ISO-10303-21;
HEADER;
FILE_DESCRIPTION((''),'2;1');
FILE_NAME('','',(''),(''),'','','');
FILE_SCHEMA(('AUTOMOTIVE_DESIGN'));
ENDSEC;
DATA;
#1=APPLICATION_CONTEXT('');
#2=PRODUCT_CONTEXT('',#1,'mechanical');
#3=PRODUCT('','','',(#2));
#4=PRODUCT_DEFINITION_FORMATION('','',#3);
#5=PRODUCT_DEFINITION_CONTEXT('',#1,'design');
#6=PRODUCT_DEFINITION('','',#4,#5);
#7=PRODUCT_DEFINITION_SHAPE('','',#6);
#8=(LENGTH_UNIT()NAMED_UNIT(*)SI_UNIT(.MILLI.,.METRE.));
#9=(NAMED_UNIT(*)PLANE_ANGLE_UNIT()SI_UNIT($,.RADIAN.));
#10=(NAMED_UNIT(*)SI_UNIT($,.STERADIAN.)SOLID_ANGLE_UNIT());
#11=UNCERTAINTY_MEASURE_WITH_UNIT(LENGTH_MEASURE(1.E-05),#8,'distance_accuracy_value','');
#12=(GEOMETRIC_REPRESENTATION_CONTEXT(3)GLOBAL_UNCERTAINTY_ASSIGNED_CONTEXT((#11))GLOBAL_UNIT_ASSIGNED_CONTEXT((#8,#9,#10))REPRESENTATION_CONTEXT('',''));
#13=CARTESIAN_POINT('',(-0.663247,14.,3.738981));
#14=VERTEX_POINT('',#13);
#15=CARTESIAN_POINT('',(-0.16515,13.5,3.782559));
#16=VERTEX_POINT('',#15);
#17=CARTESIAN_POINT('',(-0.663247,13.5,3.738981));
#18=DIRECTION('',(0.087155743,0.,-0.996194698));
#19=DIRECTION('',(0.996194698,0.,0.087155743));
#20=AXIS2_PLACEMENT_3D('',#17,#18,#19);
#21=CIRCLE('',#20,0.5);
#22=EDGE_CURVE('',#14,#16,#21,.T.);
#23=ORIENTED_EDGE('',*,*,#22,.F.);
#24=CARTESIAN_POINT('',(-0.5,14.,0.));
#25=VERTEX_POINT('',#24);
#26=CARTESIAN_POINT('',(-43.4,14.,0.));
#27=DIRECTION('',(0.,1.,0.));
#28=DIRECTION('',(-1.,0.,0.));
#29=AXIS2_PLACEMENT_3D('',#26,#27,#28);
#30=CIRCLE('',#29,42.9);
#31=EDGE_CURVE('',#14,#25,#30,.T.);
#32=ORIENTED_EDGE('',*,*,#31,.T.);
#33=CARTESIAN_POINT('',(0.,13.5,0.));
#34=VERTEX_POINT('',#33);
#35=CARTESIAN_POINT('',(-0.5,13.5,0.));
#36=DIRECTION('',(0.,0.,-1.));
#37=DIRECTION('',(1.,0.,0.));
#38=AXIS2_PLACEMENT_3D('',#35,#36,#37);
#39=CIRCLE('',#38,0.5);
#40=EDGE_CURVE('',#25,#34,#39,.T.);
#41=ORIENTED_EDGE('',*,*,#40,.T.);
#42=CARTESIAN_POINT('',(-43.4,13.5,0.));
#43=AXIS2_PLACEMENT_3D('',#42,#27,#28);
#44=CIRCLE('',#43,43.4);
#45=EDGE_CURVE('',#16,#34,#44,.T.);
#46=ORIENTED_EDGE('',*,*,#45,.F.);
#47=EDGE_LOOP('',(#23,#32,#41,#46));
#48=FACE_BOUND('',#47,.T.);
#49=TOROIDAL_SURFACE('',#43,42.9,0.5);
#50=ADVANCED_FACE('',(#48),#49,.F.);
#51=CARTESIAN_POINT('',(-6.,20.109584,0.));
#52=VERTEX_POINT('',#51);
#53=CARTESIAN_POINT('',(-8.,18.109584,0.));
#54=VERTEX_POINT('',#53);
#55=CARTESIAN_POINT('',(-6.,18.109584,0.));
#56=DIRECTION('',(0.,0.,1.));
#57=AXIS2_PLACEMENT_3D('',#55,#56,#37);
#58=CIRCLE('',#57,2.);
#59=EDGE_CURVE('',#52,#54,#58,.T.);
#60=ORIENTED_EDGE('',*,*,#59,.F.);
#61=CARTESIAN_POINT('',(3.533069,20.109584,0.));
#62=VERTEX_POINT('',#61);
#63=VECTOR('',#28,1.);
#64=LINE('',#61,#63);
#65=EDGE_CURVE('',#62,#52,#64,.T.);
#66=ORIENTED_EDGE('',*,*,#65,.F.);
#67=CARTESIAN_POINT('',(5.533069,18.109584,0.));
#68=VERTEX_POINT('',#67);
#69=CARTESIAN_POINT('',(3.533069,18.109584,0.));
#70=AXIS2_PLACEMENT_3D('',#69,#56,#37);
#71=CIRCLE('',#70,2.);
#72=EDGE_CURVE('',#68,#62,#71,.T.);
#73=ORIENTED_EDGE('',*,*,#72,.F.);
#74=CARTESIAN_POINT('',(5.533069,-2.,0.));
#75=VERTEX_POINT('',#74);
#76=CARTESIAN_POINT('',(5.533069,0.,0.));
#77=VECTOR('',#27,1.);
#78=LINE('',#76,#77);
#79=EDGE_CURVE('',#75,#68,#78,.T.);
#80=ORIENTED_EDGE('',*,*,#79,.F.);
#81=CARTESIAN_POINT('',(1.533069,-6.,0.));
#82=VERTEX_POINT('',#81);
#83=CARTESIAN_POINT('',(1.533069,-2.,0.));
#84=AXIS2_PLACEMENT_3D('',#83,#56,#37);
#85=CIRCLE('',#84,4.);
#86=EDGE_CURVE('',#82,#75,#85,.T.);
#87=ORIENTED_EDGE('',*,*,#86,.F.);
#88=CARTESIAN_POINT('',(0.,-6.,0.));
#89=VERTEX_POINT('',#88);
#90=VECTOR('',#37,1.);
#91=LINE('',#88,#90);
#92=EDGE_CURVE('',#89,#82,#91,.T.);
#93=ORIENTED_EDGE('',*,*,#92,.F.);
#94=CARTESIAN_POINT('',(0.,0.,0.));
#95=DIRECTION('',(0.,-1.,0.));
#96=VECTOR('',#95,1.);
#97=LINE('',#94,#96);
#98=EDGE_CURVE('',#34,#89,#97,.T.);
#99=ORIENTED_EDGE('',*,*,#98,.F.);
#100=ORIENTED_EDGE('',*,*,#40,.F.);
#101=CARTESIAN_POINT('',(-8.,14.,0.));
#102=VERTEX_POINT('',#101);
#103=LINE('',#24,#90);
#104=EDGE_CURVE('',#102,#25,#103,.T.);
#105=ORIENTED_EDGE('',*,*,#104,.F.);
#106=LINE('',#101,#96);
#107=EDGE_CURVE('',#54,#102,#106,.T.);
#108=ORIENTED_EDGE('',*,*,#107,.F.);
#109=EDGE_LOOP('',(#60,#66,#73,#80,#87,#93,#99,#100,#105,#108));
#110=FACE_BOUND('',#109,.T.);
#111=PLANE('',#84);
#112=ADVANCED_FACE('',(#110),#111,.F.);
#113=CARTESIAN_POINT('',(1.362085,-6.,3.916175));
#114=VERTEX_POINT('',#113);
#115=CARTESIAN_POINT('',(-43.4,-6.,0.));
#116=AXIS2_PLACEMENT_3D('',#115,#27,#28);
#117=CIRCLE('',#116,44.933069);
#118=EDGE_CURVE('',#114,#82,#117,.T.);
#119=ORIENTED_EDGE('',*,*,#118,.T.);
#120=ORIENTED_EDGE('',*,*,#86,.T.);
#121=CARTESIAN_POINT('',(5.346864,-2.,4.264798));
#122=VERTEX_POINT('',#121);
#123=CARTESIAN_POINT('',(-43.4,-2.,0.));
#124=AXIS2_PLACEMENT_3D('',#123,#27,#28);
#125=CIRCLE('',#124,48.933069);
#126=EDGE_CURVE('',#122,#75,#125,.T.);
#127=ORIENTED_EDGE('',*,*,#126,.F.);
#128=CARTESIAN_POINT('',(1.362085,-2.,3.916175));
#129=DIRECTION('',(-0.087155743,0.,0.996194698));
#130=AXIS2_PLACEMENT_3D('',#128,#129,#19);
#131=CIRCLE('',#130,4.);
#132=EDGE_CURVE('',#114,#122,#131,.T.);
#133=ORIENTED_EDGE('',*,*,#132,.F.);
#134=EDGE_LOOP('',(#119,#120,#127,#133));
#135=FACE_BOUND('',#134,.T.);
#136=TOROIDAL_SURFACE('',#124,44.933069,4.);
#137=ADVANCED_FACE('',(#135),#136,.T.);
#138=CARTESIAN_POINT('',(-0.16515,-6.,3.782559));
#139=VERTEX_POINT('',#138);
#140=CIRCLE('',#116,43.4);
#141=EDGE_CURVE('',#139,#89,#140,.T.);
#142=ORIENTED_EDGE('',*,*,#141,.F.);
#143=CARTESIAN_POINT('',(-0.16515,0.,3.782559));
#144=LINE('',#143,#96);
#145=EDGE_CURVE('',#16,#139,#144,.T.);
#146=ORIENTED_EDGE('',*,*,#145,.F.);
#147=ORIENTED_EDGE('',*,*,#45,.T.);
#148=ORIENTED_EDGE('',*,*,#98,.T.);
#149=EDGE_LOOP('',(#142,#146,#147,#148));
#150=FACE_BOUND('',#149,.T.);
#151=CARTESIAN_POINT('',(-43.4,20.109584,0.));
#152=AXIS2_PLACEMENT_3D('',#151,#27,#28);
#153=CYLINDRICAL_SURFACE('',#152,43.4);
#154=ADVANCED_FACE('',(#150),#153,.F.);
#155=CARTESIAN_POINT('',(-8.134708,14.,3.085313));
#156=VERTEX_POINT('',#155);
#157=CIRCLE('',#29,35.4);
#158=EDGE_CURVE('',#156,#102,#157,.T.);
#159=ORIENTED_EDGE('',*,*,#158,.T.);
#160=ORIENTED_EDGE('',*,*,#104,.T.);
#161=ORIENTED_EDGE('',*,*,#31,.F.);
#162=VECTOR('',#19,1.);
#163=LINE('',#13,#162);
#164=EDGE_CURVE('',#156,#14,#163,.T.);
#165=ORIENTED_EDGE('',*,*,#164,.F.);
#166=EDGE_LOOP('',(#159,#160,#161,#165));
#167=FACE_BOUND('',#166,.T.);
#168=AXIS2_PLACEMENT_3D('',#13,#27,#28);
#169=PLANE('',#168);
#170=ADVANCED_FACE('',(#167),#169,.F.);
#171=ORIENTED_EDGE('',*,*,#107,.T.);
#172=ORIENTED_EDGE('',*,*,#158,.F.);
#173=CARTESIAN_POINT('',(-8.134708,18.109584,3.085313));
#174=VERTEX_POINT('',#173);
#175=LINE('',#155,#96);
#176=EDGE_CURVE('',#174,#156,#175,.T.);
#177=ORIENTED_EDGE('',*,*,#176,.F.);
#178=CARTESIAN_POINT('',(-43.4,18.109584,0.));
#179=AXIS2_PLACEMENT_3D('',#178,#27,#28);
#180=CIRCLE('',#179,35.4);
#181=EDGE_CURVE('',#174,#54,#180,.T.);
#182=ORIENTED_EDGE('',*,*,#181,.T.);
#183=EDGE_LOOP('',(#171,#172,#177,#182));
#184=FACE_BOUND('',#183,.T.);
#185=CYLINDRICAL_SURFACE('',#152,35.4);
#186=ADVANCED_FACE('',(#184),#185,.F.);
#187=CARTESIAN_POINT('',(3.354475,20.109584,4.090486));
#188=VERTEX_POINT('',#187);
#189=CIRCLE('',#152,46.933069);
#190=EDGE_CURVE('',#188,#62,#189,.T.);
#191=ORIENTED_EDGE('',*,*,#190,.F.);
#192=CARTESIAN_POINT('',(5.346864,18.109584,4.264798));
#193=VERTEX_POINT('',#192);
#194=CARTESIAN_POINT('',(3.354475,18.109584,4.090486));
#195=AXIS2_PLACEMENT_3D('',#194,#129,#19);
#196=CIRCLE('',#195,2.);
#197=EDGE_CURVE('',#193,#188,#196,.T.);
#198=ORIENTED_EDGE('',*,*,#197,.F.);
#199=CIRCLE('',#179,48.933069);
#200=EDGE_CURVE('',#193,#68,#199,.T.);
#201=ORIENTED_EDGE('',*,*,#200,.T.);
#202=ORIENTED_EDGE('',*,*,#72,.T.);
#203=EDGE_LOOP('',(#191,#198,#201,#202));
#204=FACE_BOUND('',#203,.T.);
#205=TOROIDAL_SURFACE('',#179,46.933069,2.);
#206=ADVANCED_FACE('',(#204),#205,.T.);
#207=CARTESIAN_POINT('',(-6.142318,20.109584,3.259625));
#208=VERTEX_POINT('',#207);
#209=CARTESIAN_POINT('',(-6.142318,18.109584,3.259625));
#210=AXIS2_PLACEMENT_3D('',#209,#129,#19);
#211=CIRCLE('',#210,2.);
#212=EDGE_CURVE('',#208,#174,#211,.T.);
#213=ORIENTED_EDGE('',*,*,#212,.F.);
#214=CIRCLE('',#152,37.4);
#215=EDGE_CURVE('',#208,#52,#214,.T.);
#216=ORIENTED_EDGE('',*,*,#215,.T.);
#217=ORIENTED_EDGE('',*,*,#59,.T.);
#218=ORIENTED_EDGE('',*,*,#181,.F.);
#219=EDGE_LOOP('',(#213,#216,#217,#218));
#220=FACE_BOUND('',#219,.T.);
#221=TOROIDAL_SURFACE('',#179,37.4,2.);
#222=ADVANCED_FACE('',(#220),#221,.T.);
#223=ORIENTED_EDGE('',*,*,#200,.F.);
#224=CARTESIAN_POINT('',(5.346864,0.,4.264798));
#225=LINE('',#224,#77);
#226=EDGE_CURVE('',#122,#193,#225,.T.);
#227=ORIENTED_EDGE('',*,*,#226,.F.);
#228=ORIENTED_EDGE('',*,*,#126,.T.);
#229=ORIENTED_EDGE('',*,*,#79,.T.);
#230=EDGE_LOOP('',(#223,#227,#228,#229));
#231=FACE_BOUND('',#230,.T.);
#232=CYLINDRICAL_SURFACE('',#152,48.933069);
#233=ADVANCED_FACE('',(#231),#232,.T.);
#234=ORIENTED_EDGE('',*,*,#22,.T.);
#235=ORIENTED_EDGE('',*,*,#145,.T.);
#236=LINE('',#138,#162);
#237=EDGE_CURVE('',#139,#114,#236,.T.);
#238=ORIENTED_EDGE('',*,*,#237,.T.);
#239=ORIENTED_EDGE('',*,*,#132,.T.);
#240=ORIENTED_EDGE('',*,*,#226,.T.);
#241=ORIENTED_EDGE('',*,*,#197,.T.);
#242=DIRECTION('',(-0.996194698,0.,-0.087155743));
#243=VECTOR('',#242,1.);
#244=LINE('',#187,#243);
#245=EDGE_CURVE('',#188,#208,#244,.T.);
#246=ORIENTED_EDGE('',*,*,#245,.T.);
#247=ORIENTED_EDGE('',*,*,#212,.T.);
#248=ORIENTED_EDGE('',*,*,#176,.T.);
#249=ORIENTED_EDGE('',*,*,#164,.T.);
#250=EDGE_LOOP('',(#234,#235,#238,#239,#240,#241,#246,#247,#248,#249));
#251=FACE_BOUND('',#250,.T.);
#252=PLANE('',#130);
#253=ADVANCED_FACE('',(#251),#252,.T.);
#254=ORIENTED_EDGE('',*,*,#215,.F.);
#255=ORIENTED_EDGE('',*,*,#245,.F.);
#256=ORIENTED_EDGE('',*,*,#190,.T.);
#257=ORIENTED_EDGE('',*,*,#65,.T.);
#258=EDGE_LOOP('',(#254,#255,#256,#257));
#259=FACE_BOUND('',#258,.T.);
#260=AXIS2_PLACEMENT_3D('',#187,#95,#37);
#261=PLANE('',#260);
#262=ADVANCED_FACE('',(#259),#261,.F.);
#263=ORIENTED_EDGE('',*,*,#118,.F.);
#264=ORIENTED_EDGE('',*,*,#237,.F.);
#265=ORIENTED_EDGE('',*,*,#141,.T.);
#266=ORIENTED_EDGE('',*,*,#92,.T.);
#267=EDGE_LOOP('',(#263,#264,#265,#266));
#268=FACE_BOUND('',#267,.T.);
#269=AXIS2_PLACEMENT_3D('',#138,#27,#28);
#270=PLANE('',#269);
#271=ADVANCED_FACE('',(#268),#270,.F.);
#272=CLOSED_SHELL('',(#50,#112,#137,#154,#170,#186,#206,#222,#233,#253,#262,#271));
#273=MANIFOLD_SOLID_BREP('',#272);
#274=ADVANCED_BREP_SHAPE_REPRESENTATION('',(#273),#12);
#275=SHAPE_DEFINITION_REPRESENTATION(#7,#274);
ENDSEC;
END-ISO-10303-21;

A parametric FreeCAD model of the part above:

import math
import FreeCAD as App
import Part
import Sketcher
from FreeCAD import Vector

doc = App.newDocument("Part")
params = doc.addObject("Spreadsheet::Sheet", "Params")
for row, (alias, value) in enumerate([
    ("sketch1_radius", "4 mm"),
    ("sketch1_radius2", "2 mm"),
    ("sketch1_radius3", "0.5 mm"),
    ("sketch1_width", "7.5 mm"),
    ("sketch1_height", "19.5 mm"),
    ("revolution_angle", "5 deg"),
], start=1):
    params.set(f"A{row}", alias)
    params.set(f"B{row}", "=" + value)
    params.setAlias(f"B{row}", alias)

body = doc.addObject("PartDesign::Body", "Body")

sketch1 = body.newObject("Sketcher::SketchObject", "Sketch")
sketch1.AttachmentSupport = (doc.getObject("XY_Plane"), [""])
sketch1.MapMode = "FlatFace"
sketch1.addGeometry([
    Part.ArcOfCircle(Part.Circle(Vector(-0.5, 13.5, 0), Vector(0, 0, 1), 0.5), math.radians(0), math.radians(90)),
    Part.LineSegment(Vector(0, 13.5, 0), Vector(0, -6, 0)),
    Part.LineSegment(Vector(0, -6, 0), Vector(1.53, -6, 0)),
    Part.ArcOfCircle(Part.Circle(Vector(1.53, -2, 0), Vector(0, 0, 1), 4), math.radians(-90), math.radians(0)),
    Part.LineSegment(Vector(5.53, -2, 0), Vector(5.53, 18.11, 0)),
    Part.ArcOfCircle(Part.Circle(Vector(3.53, 18.11, 0), Vector(0, 0, 1), 2), math.radians(0), math.radians(90)),
    Part.LineSegment(Vector(3.53, 20.11, 0), Vector(-6, 20.11, 0)),
    Part.ArcOfCircle(Part.Circle(Vector(-6, 18.11, 0), Vector(0, 0, 1), 2), math.radians(90), math.radians(180)),
    Part.LineSegment(Vector(-8, 18.11, 0), Vector(-8, 14, 0)),
    Part.LineSegment(Vector(-8, 14, 0), Vector(-0.5, 14, 0)),
], False)
sketch1.addGeometry(Part.LineSegment(Vector(-43.4, 20.11, 0), Vector(-43.4, -6, 0)), True)
sketch1.addConstraint([
    Sketcher.Constraint("Tangent", 0, 1, 1, 1),
    Sketcher.Constraint("Coincident", 1, 2, 2, 1),
    Sketcher.Constraint("Tangent", 2, 2, 3, 1),
    Sketcher.Constraint("Tangent", 3, 2, 4, 1),
    Sketcher.Constraint("Tangent", 4, 2, 5, 1),
    Sketcher.Constraint("Tangent", 5, 2, 6, 1),
    Sketcher.Constraint("Tangent", 6, 2, 7, 1),
    Sketcher.Constraint("Tangent", 7, 2, 8, 1),
    Sketcher.Constraint("Coincident", 8, 2, 9, 1),
    Sketcher.Constraint("Tangent", 9, 2, 0, 2),
    Sketcher.Constraint("Vertical", 1),
    Sketcher.Constraint("Horizontal", 2),
    Sketcher.Constraint("Vertical", 4),
    Sketcher.Constraint("Horizontal", 6),
    Sketcher.Constraint("Vertical", 8),
    Sketcher.Constraint("Horizontal", 9),
    Sketcher.Constraint("Vertical", 10),
    Sketcher.Constraint("Equal", 5, 7),
    Sketcher.Constraint("PointOnObject", 0, 1, -2),
    Sketcher.Constraint("Horizontal", 6, 2, 10, 1),
    Sketcher.Constraint("Horizontal", 2, 2, 10, 2),
    Sketcher.Constraint("Radius", 3, 4.0),
    Sketcher.Constraint("Radius", 5, 2.0),
    Sketcher.Constraint("Radius", 0, 0.5),
    Sketcher.Constraint("DistanceX", 9, 1, 9, 2, 7.5),
    Sketcher.Constraint("DistanceY", 1, 2, 1, 1, 19.5),
    Sketcher.Constraint("DistanceY", 3, 3, -1, 1, 2.0),
    Sketcher.Constraint("DistanceX", 10, 1, -1, 1, 43.4),
    Sketcher.Constraint("DistanceX", 2, 1, 2, 2, 1.533069),
    Sketcher.Constraint("DistanceY", 4, 1, 4, 2, 20.109584),
])
sketch1.setExpression("Constraints[21]", "Params.sketch1_radius")
sketch1.setExpression("Constraints[22]", "Params.sketch1_radius2")
sketch1.setExpression("Constraints[23]", "Params.sketch1_radius3")
sketch1.setExpression("Constraints[24]", "Params.sketch1_width")
sketch1.setExpression("Constraints[25]", "Params.sketch1_height")
revolution = body.newObject("PartDesign::Revolution", "Revolution")
revolution.Profile = sketch1
revolution.ReferenceAxis = (sketch1, ["Axis0"])
revolution.setExpression("Angle", "Params.revolution_angle")

doc.recompute()
